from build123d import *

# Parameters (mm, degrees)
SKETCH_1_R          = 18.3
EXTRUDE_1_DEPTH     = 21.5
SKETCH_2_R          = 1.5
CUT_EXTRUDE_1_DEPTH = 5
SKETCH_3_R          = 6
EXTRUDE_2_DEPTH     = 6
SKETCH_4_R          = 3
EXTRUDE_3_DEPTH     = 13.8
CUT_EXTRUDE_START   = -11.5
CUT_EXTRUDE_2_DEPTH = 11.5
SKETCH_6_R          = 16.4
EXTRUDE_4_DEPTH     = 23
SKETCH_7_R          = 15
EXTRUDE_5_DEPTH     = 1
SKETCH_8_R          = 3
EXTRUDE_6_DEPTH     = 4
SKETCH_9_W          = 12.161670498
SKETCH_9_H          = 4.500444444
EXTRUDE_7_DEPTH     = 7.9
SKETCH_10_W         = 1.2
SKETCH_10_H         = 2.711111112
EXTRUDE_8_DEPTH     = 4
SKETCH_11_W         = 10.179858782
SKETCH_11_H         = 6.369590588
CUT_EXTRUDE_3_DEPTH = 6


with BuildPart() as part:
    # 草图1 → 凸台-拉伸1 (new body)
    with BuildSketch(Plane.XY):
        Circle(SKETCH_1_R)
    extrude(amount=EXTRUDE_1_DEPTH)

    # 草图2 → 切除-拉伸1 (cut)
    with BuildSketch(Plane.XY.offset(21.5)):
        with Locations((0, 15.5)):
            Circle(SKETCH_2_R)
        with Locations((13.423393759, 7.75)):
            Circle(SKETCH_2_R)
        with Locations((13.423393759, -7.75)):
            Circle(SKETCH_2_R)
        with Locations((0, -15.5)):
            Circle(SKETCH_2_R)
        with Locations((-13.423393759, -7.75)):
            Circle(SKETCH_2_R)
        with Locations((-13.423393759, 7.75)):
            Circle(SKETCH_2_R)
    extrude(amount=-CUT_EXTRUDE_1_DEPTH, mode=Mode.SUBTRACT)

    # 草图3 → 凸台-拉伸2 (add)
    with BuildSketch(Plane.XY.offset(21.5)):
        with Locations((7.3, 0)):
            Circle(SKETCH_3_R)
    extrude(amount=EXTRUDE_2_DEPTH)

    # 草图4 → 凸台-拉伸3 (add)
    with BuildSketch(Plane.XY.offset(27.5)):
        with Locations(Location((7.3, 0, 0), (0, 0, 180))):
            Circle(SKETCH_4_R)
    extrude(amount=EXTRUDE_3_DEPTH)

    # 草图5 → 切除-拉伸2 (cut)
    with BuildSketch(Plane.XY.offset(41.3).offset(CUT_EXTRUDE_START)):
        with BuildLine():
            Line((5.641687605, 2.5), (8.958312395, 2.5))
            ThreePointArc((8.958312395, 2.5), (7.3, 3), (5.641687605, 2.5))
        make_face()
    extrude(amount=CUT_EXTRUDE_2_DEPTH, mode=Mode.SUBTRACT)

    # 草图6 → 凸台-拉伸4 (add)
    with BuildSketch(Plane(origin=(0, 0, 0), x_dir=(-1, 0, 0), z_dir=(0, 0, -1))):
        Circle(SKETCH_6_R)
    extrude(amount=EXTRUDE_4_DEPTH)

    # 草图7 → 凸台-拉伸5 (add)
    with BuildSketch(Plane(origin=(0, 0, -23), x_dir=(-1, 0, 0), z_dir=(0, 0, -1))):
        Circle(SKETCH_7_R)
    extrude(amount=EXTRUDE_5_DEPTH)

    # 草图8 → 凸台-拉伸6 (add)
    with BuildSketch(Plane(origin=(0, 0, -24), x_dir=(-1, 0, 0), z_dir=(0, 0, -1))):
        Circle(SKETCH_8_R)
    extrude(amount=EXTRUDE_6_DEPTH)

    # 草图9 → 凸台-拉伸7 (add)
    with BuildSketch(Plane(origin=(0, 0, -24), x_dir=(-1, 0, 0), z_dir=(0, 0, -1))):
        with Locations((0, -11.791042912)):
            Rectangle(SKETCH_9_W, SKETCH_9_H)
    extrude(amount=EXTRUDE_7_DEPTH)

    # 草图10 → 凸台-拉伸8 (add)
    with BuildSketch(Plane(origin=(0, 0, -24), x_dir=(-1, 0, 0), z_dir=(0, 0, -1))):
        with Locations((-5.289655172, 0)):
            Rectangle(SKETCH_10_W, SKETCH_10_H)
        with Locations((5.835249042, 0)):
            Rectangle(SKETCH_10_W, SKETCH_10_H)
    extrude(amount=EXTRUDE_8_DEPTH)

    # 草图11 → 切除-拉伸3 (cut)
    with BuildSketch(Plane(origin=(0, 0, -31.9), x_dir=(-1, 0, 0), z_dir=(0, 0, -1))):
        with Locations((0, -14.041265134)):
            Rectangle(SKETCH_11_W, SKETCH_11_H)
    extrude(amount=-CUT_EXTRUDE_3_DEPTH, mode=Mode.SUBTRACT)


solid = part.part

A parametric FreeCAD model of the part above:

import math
import FreeCAD as App
import Part
import Sketcher


def add_polygon(sketch, points):
    """Adds a closed chain of lines whose ends are joined by coincident constraints."""
    first, n = sketch.GeometryCount, len(points)
    for a, b in zip(points, points[1:] + points[:1]):
        sketch.addGeometry(Part.LineSegment(App.Vector(*a, 0), App.Vector(*b, 0)), False)
    for i in range(n):
        sketch.addConstraint(Sketcher.Constraint("Coincident", first + i, 2, first + (i + 1) % n, 1))

doc = App.newDocument("Part")
body = doc.addObject("PartDesign::Body", "Body")

# Sketch on XY plane
sketch1 = body.newObject("Sketcher::SketchObject", "Sketch")
sketch1.AttachmentSupport = (doc.getObject("XY_Plane"), [""])
sketch1.MapMode = "FlatFace"
sketch1.addGeometry(Part.Circle(App.Vector(0, 0, 0), App.Vector(0, 0, 1), 18), False)
sketch1.addConstraint(Sketcher.Constraint("Coincident", 0, 3, -1, 1))
sketch1.addConstraint(Sketcher.Constraint("Diameter", 0, 36.6))
pad1 = body.newObject("PartDesign::Pad", "Pad")
pad1.Profile = sketch1
pad1.Length = 21.5

# Sketch on XY plane
sketch2 = body.newObject("Sketcher::SketchObject", "Sketch001")
sketch2.AttachmentSupport = (doc.getObject("XY_Plane"), [""])
sketch2.MapMode = "FlatFace"
sketch2.AttachmentOffset = App.Placement(App.Vector(0, 0, 21.5), App.Rotation())
sketch2.addGeometry(Part.Circle(App.Vector(0, 15.5, 0), App.Vector(0, 0, 1), 1.5), False)
sketch2.addGeometry(Part.Circle(App.Vector(13.4, 7.8, 0), App.Vector(0, 0, 1), 1.5), False)
sketch2.addGeometry(Part.Circle(App.Vector(13.4, -7.8, 0), App.Vector(0, 0, 1), 1.5), False)
sketch2.addGeometry(Part.Circle(App.Vector(0, -15.5, 0), App.Vector(0, 0, 1), 1.5), False)
sketch2.addGeometry(Part.Circle(App.Vector(-13.4, -7.8, 0), App.Vector(0, 0, 1), 1.5), False)
sketch2.addGeometry(Part.Circle(App.Vector(-13.4, 7.8, 0), App.Vector(0, 0, 1), 1.5), False)
sketch2.addConstraint(Sketcher.Constraint("Equal", 0, 1))
sketch2.addConstraint(Sketcher.Constraint("Equal", 1, 2))
sketch2.addConstraint(Sketcher.Constraint("Equal", 2, 3))
sketch2.addConstraint(Sketcher.Constraint("Equal", 3, 4))
sketch2.addConstraint(Sketcher.Constraint("Equal", 4, 5))
sketch2.addConstraint(Sketcher.Constraint("Symmetric", 0, 3, 3, 3, -1, 1))
sketch2.addConstraint(Sketcher.Constraint("Symmetric", 1, 3, 4, 3, -1, 1))
sketch2.addConstraint(Sketcher.Constraint("Symmetric", 2, 3, 5, 3, -1, 1))
sketch2.addConstraint(Sketcher.Constraint("Symmetric", 2, 3, 4, 3, -2))
sketch2.addConstraint(Sketcher.Constraint("PointOnObject", 0, 3, -2))
sketch2.addConstraint(Sketcher.Constraint("Diameter", 0, 3.0))
sketch2.addConstraint(Sketcher.Constraint("DistanceY", 3, 3, 0, 3, 31.0))
sketch2.addConstraint(Sketcher.Constraint("DistanceY", 2, 3, 1, 3, 15.5))
sketch2.addConstraint(Sketcher.Constraint("DistanceX", -1, 1, 1, 3, 13.423394))
pocket1 = body.newObject("PartDesign::Pocket", "Pocket")
pocket1.Profile = sketch2
pocket1.Length = 5

# Sketch on XY plane
sketch3 = body.newObject("Sketcher::SketchObject", "Sketch002")
sketch3.AttachmentSupport = (doc.getObject("XY_Plane"), [""])
sketch3.MapMode = "FlatFace"
sketch3.AttachmentOffset = App.Placement(App.Vector(0, 0, 21.5), App.Rotation())
sketch3.addGeometry(Part.Circle(App.Vector(7, 0, 0), App.Vector(0, 0, 1), 6), False)
sketch3.addConstraint(Sketcher.Constraint("PointOnObject", 0, 3, -1))
sketch3.addConstraint(Sketcher.Constraint("Diameter", 0, 12.0))
sketch3.addConstraint(Sketcher.Constraint("DistanceX", -1, 1, 0, 3, 7.3))
pad2 = body.newObject("PartDesign::Pad", "Pad001")
pad2.Profile = sketch3
pad2.Length = 6

# Sketch on XY plane
sketch4 = body.newObject("Sketcher::SketchObject", "Sketch003")
sketch4.AttachmentSupport = (doc.getObject("XY_Plane"), [""])
sketch4.MapMode = "FlatFace"
sketch4.AttachmentOffset = App.Placement(App.Vector(0, 0, 27.5), App.Rotation())
sketch4.addGeometry(Part.Circle(App.Vector(7.3, 0, 0), App.Vector(0, 0, 1), 3), False)
sketch4.addConstraint(Sketcher.Constraint("PointOnObject", 0, 3, -1))
sketch4.addConstraint(Sketcher.Constraint("Diameter", 0, 6.0))
sketch4.addConstraint(Sketcher.Constraint("DistanceX", -1, 1, 0, 3, 7.3))
pad3 = body.newObject("PartDesign::Pad", "Pad002")
pad3.Profile = sketch4
pad3.Length = 13.8

# Sketch on XY plane
sketch5 = body.newObject("Sketcher::SketchObject", "Sketch004")
sketch5.AttachmentSupport = (doc.getObject("XY_Plane"), [""])
sketch5.MapMode = "FlatFace"
sketch5.AttachmentOffset = App.Placement(App.Vector(0, 0, 29.8), App.Rotation())
sketch5.addGeometry(Part.LineSegment(App.Vector(5.6, 2.5, 0), App.Vector(9, 2.5, 0)), False)
sketch5.addGeometry(Part.ArcOfCircle(Part.Circle(App.Vector(7.3, 0, 0), App.Vector(0, 0, 1), 3), math.radians(56), math.radians(124)), False)
sketch5.addConstraint(Sketcher.Constraint("Coincident", 0, 1, 1, 2))
sketch5.addConstraint(Sketcher.Constraint("Coincident", 1, 1, 0, 2))
sketch5.addConstraint(Sketcher.Constraint("Horizontal", 0))
sketch5.addConstraint(Sketcher.Constraint("PointOnObject", 1, 3, -1))
sketch5.addConstraint(Sketcher.Constraint("Radius", 1, 3.0))
sketch5.addConstraint(Sketcher.Constraint("DistanceX", -1, 1, 1, 3, 7.3))
sketch5.addConstraint(Sketcher.Constraint("DistanceY", -1, 1, 0, 1, 2.5))
pocket2 = body.newObject("PartDesign::Pocket", "Pocket001")
pocket2.Profile = sketch5
pocket2.Length = 11.5
pocket2.Reversed = True

# Sketch on XY plane
sketch6 = body.newObject("Sketcher::SketchObject", "Sketch005")
sketch6.AttachmentSupport = (doc.getObject("XY_Plane"), [""])
sketch6.MapMode = "FlatFace"
sketch6.addGeometry(Part.Circle(App.Vector(0, 0, 0), App.Vector(0, 0, 1), 16), False)
sketch6.addConstraint(Sketcher.Constraint("Coincident", 0, 3, -1, 1))
sketch6.addConstraint(Sketcher.Constraint("Diameter", 0, 32.8))
pad4 = body.newObject("PartDesign::Pad", "Pad003")
pad4.Profile = sketch6
pad4.Length = 23
pad4.Reversed = True

# Sketch on XY plane
sketch7 = body.newObject("Sketcher::SketchObject", "Sketch006")
sketch7.AttachmentSupport = (doc.getObject("XY_Plane"), [""])
sketch7.MapMode = "FlatFace"
sketch7.AttachmentOffset = App.Placement(App.Vector(0, 0, -23), App.Rotation())
sketch7.addGeometry(Part.Circle(App.Vector(0, 0, 0), App.Vector(0, 0, 1), 15), False)
sketch7.addConstraint(Sketcher.Constraint("Coincident", 0, 3, -1, 1))
sketch7.addConstraint(Sketcher.Constraint("Diameter", 0, 30.0))
pad5 = body.newObject("PartDesign::Pad", "Pad004")
pad5.Profile = sketch7
pad5.Length = 1
pad5.Reversed = True

# Sketch on XY plane
sketch8 = body.newObject("Sketcher::SketchObject", "Sketch007")
sketch8.AttachmentSupport = (doc.getObject("XY_Plane"), [""])
sketch8.MapMode = "FlatFace"
sketch8.AttachmentOffset = App.Placement(App.Vector(0, 0, -24), App.Rotation())
sketch8.addGeometry(Part.Circle(App.Vector(0, 0, 0), App.Vector(0, 0, 1), 3), False)
sketch8.addConstraint(Sketcher.Constraint("Coincident", 0, 3, -1, 1))
sketch8.addConstraint(Sketcher.Constraint("Diameter", 0, 6.0))
pad6 = body.newObject("PartDesign::Pad", "Pad005")
pad6.Profile = sketch8
pad6.Length = 4
pad6.Reversed = True

# Sketch on XY plane
sketch9 = body.newObject("Sketcher::SketchObject", "Sketch008")
sketch9.AttachmentSupport = (doc.getObject("XY_Plane"), [""])
sketch9.MapMode = "FlatFace"
sketch9.AttachmentOffset = App.Placement(App.Vector(0, 0, -24), App.Rotation())
add_polygon(sketch9, [(6.1, -9.5), (6.1, -14), (-6.1, -14), (-6.1, -9.5)])  # lines 0-3
sketch9.addConstraint(Sketcher.Constraint("Vertical", 0))
sketch9.addConstraint(Sketcher.Constraint("Horizontal", 1))
sketch9.addConstraint(Sketcher.Constraint("Vertical", 2))
sketch9.addConstraint(Sketcher.Constraint("Horizontal", 3))
sketch9.addConstraint(Sketcher.Constraint("DistanceX", 1, 2, 1, 1, 12.16167))
sketch9.addConstraint(Sketcher.Constraint("DistanceY", 0, 2, 0, 1, 4.500444))
sketch9.addConstraint(Sketcher.Constraint("DistanceY", 2, 2, -1, 1, 9.540821))
sketch9.addConstraint(Sketcher.Constraint("DistanceX", -1, 1, 0, 2, 6.080835))
pad7 = body.newObject("PartDesign::Pad", "Pad006")
pad7.Profile = sketch9
pad7.Length = 7.9
pad7.Reversed = True

# Sketch on XY plane
sketch10 = body.newObject("Sketcher::SketchObject", "Sketch009")
sketch10.AttachmentSupport = (doc.getObject("XY_Plane"), [""])
sketch10.MapMode = "FlatFace"
sketch10.AttachmentOffset = App.Placement(App.Vector(0, 0, -24), App.Rotation())
add_polygon(sketch10, [(5.9, 1.4), (5.9, -1.4), (4.7, -1.4), (4.7, 1.4)])  # lines 0-3
add_polygon(sketch10, [(-5.2, 1.4), (-5.2, -1.4), (-6.4, -1.4), (-6.4, 1.4)])  # lines 4-7
sketch10.addConstraint(Sketcher.Constraint("Vertical", 0))
sketch10.addConstraint(Sketcher.Constraint("Horizontal", 1))
sketch10.addConstraint(Sketcher.Constraint("Vertical", 2))
sketch10.addConstraint(Sketcher.Constraint("Horizontal", 3))
sketch10.addConstraint(Sketcher.Constraint("Vertical", 4))
sketch10.addConstraint(Sketcher.Constraint("Horizontal", 5))
sketch10.addConstraint(Sketcher.Constraint("Vertical", 6))
sketch10.addConstraint(Sketcher.Constraint("Horizontal", 7))
sketch10.addConstraint(Sketcher.Constraint("Horizontal", 1, 2, 4, 2))
sketch10.addConstraint(Sketcher.Constraint("Horizontal", 3, 2, 6, 2))
sketch10.addConstraint(Sketcher.Constraint("Equal", 3, 5))
sketch10.addConstraint(Sketcher.Constraint("DistanceX", 1, 2, 1, 1, 1.2))
sketch10.addConstraint(Sketcher.Constraint("DistanceY", 0, 2, 0, 1, 2.711111))
sketch10.addConstraint(Sketcher.Constraint("DistanceX", 4, 2, -1, 1, 5.235249))
sketch10.addConstraint(Sketcher.Constraint("DistanceX", -1, 1, 0, 2, 5.889655))
sketch10.addConstraint(Sketcher.Constraint("DistanceY", 0, 2, -1, 1, 1.355556))
pad8 = body.newObject("PartDesign::Pad", "Pad007")
pad8.Profile = sketch10
pad8.Length = 4
pad8.Reversed = True

# Sketch on XY plane
sketch11 = body.newObject("Sketcher::SketchObject", "Sketch010")
sketch11.AttachmentSupport = (doc.getObject("XY_Plane"), [""])
sketch11.MapMode = "FlatFace"
sketch11.AttachmentOffset = App.Placement(App.Vector(0, 0, -31.9), App.Rotation())
add_polygon(sketch11, [(5, -11), (5, -17), (-5, -17), (-5, -11)])  # lines 0-3
sketch11.addConstraint(Sketcher.Constraint("Vertical", 0))
sketch11.addConstraint(Sketcher.Constraint("Horizontal", 1))
sketch11.addConstraint(Sketcher.Constraint("Vertical", 2))
sketch11.addConstraint(Sketcher.Constraint("Horizontal", 3))
sketch11.addConstraint(Sketcher.Constraint("DistanceX", 1, 2, 1, 1, 10.179859))
sketch11.addConstraint(Sketcher.Constraint("DistanceY", 0, 2, 0, 1, 6.369591))
sketch11.addConstraint(Sketcher.Constraint("DistanceX", -1, 1, 0, 2, 5.089929))
sketch11.addConstraint(Sketcher.Constraint("DistanceY", 0, 2, -1, 1, 17.22606))
pocket3 = body.newObject("PartDesign::Pocket", "Pocket002")
pocket3.Profile = sketch11
pocket3.Length = 6
pocket3.Reversed = True

doc.recompute()
